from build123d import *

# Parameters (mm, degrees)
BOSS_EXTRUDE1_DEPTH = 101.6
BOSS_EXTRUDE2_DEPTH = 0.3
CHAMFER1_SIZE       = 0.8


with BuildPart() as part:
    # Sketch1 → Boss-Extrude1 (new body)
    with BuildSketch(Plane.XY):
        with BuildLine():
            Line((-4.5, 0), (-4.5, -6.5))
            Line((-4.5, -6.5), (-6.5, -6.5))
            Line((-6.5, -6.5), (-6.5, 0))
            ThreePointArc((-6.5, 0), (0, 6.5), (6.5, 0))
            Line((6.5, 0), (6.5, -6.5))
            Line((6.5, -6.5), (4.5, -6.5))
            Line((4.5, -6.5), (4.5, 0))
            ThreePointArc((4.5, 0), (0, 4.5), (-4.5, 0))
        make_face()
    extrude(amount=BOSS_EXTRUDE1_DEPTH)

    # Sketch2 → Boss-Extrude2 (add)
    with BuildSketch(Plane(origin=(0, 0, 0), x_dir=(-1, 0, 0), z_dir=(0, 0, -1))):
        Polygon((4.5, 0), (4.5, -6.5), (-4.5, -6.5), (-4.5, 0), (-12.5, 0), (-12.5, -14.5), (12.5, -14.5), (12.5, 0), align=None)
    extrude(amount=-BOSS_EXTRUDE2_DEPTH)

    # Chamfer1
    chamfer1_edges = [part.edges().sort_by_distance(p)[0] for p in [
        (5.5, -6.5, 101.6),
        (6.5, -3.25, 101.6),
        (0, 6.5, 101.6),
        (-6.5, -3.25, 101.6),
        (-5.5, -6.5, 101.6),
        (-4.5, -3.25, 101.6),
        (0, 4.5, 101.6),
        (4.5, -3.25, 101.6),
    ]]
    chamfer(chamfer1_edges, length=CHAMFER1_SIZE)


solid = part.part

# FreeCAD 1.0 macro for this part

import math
import FreeCAD as App
import Part
import Sketcher
Q = App.Units.Quantity


def edges_at(feature, points):
    """Names of the edges that pass closest to the given points."""
    edges = feature.Shape.Edges
    near = lambda p: min(range(len(edges)), key=lambda i: edges[i].distToShape(Part.Vertex(*p))[0])
    return sorted({f"Edge{near(p) + 1}" for p in points})


def add_polygon(sketch, points):
    """Adds a closed chain of lines whose ends are joined by coincident constraints."""
    first, n = sketch.GeometryCount, len(points)
    for a, b in zip(points, points[1:] + points[:1]):
        sketch.addGeometry(Part.LineSegment(App.Vector(*a, 0), App.Vector(*b, 0)), False)
    for i in range(n):
        sketch.addConstraint(Sketcher.Constraint("Coincident", first + i, 2, first + (i + 1) % n, 1))

doc = App.newDocument("Part")
body = doc.addObject("PartDesign::Body", "Body")

sketch1 = body.newObject("Sketcher::SketchObject", "Sketch")
sketch1.AttachmentSupport = (doc.getObject("XY_Plane"), [""])
sketch1.MapMode = "FlatFace"
sketch1.addGeometry(Part.LineSegment(App.Vector(-4.5, -6.5, 0), App.Vector(-4.5, 0, 0)), False)
sketch1.addGeometry(Part.ArcOfCircle(Part.Circle(App.Vector(0, 0, 0), App.Vector(0, 0, 1), 4.5), math.radians(0), math.radians(180)), False)
sketch1.addGeometry(Part.LineSegment(App.Vector(4.5, 0, 0), App.Vector(4.5, -6.5, 0)), False)
sketch1.addGeometry(Part.LineSegment(App.Vector(4.5, -6.5, 0), App.Vector(6.5, -6.5, 0)), False)
sketch1.addGeometry(Part.LineSegment(App.Vector(6.5, -6.5, 0), App.Vector(6.5, 0, 0)), False)
sketch1.addGeometry(Part.ArcOfCircle(Part.Circle(App.Vector(0, 0, 0), App.Vector(0, 0, 1), 6.5), math.radians(0), math.radians(180)), False)
sketch1.addGeometry(Part.LineSegment(App.Vector(-6.5, 0, 0), App.Vector(-6.5, -6.5, 0)), False)
sketch1.addGeometry(Part.LineSegment(App.Vector(-6.5, -6.5, 0), App.Vector(-4.5, -6.5, 0)), False)
sketch1.addConstraint(Sketcher.Constraint("Tangent", 0, 2, 1, 2))
sketch1.addConstraint(Sketcher.Constraint("Tangent", 1, 1, 2, 1))
sketch1.addConstraint(Sketcher.Constraint("Coincident", 2, 2, 3, 1))
sketch1.addConstraint(Sketcher.Constraint("Coincident", 3, 2, 4, 1))
sketch1.addConstraint(Sketcher.Constraint("Tangent", 4, 2, 5, 1))
sketch1.addConstraint(Sketcher.Constraint("Tangent", 5, 2, 6, 1))
sketch1.addConstraint(Sketcher.Constraint("Coincident", 6, 2, 7, 1))
sketch1.addConstraint(Sketcher.Constraint("Coincident", 7, 2, 0, 1))
sketch1.addConstraint(Sketcher.Constraint("Vertical", 0))
sketch1.addConstraint(Sketcher.Constraint("Vertical", 2))
sketch1.addConstraint(Sketcher.Constraint("Horizontal", 3))
sketch1.addConstraint(Sketcher.Constraint("Vertical", 4))
sketch1.addConstraint(Sketcher.Constraint("Vertical", 6))
sketch1.addConstraint(Sketcher.Constraint("Horizontal", 7))
sketch1.addConstraint(Sketcher.Constraint("Coincident", 1, 3, -1, 1))
sketch1.addConstraint(Sketcher.Constraint("Coincident", 5, 3, -1, 1))
sketch1.addConstraint(Sketcher.Constraint("Horizontal", 3, 2, 6, 2))
sketch1.addConstraint(Sketcher.Constraint("Radius", 1, Q("4.5 mm")))
sketch1.addConstraint(Sketcher.Constraint("Radius", 5, Q("6.5 mm")))
sketch1.addConstraint(Sketcher.Constraint("DistanceY", 0, 1, 0, 2, Q("6.5 mm")))
pad1 = body.newObject("PartDesign::Pad", "Pad")
pad1.Profile = sketch1
pad1.Length = 101.6

sketch2 = body.newObject("Sketcher::SketchObject", "Sketch001")
sketch2.AttachmentSupport = (doc.getObject("XY_Plane"), [""])
sketch2.MapMode = "FlatFace"
add_polygon(sketch2, [(-4, 0), (-4, -6), (4, -6), (4, 0), (12, 0), (12, -14), (-12, -14), (-12, 0)])
sketch2.addConstraint(Sketcher.Constraint("Vertical", 0))
sketch2.addConstraint(Sketcher.Constraint("Horizontal", 1))
sketch2.addConstraint(Sketcher.Constraint("Vertical", 2))
sketch2.addConstraint(Sketcher.Constraint("Horizontal", 3))
sketch2.addConstraint(Sketcher.Constraint("Vertical", 4))
sketch2.addConstraint(Sketcher.Constraint("Horizontal", 5))
sketch2.addConstraint(Sketcher.Constraint("Vertical", 6))
sketch2.addConstraint(Sketcher.Constraint("Horizontal", 7))
sketch2.addConstraint(Sketcher.Constraint("Symmetric", 3, 2, 6, 2, -1, 1))
sketch2.addConstraint(Sketcher.Constraint("Symmetric", 2, 2, 7, 2, -2))
sketch2.addConstraint(Sketcher.Constraint("DistanceX", 1, 1, 1, 2, Q("9 mm")))
sketch2.addConstraint(Sketcher.Constraint("DistanceX", 3, 1, 3, 2, Q("8 mm")))
sketch2.addConstraint(Sketcher.Constraint("DistanceY", 0, 2, 0, 1, Q("6.5 mm")))
sketch2.addConstraint(Sketcher.Constraint("DistanceY", 4, 2, 4, 1, Q("14.5 mm")))
pad2 = body.newObject("PartDesign::Pad", "Pad001")
pad2.Profile = sketch2
pad2.Length = 0.3
doc.recompute()

chamfer = body.newObject("PartDesign::Chamfer", "Chamfer")
chamfer.Base = (pad2, edges_at(pad2, [
    (5.5, -6.5, 101.6),
    (6.5, -3.25, 101.6),
    (0, 6.5, 101.6),
    (-6.5, -3.25, 101.6),
    (-5.5, -6.5, 101.6),
    (-4.5, -3.25, 101.6),
    (0, 4.5, 101.6),
    (4.5, -3.25, 101.6),
]))
chamfer.Size = 0.8

doc.recompute()
